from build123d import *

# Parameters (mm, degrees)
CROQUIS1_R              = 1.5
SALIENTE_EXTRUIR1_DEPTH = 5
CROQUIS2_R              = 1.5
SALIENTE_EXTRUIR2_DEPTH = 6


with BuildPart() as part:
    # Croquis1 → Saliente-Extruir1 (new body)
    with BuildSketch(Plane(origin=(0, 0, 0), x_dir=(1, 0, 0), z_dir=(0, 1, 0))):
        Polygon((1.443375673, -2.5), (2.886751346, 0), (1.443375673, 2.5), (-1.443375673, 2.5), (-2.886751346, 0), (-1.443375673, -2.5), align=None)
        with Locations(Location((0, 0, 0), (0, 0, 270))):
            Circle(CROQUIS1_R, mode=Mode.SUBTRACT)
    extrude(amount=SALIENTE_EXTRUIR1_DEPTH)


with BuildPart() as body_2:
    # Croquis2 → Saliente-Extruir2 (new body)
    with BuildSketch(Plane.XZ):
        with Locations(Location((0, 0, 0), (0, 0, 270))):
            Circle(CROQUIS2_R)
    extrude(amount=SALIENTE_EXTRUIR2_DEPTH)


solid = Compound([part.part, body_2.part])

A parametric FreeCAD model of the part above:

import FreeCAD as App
import Part
import Sketcher

V = App.Vector
Q = App.Units.Quantity

doc = App.newDocument("Part")
body = doc.addObject("PartDesign::Body", "Body")

# Sketch on XZ plane
sketch1 = body.newObject("Sketcher::SketchObject", "Sketch")
sketch1.AttachmentSupport = (doc.getObject("XZ_Plane"), [""])
sketch1.MapMode = "FlatFace"
sketch1.addGeometry([
    Part.LineSegment(V(1.4, 2.5, 0), V(2.9, 0, 0)),  # 0
    Part.LineSegment(V(2.9, 0, 0), V(1.4, -2.5, 0)),  # 1
    Part.LineSegment(V(1.4, -2.5, 0), V(-1.4, -2.5, 0)),  # 2
    Part.LineSegment(V(-1.4, -2.5, 0), V(-2.9, 0, 0)),  # 3
    Part.LineSegment(V(-2.9, 0, 0), V(-1.4, 2.5, 0)),  # 4
    Part.LineSegment(V(-1.4, 2.5, 0), V(1.4, 2.5, 0)),  # 5
    Part.Circle(V(0, 0, 0), V(0, 0, 1), 1.5),  # 6
], False)
sketch1.addConstraint([
    Sketcher.Constraint("Coincident", 0, 2, 1, 1),
    Sketcher.Constraint("Coincident", 1, 2, 2, 1),
    Sketcher.Constraint("Coincident", 2, 2, 3, 1),
    Sketcher.Constraint("Coincident", 3, 2, 4, 1),
    Sketcher.Constraint("Coincident", 4, 2, 5, 1),
    Sketcher.Constraint("Coincident", 5, 2, 0, 1),
    Sketcher.Constraint("Horizontal", 2),
    Sketcher.Constraint("Horizontal", 5),
    Sketcher.Constraint("Coincident", 6, 3, -1, 1),
    Sketcher.Constraint("Symmetric", 0, 2, 3, 2, -1, 1),
    Sketcher.Constraint("Symmetric", 1, 2, 4, 2, -1, 1),
    Sketcher.Constraint("PointOnObject", 0, 2, -1),
    Sketcher.Constraint("Parallel", 0, 3),
    Sketcher.Constraint("Vertical", 2, 2, 4, 2),
    Sketcher.Constraint("Diameter", 6, 3.0),
    Sketcher.Constraint("Angle", 0, Q("-60 deg")),
    Sketcher.Constraint("DistanceY", 2, 2, 4, 2, 5.0),
    Sketcher.Constraint("DistanceX", 2, 2, 2, 1, 2.886751),
])
pad1 = body.newObject("PartDesign::Pad", "Pad")
pad1.Profile = sketch1
pad1.Length = 5
pad1.Reversed = True
body2 = doc.addObject("PartDesign::Body", "Body001")

# Sketch on XZ plane
sketch2 = body2.newObject("Sketcher::SketchObject", "Sketch001")
sketch2.AttachmentSupport = (doc.getObject("XZ_Plane001"), [""])
sketch2.MapMode = "FlatFace"
sketch2.addGeometry(Part.Circle(V(0, 0, 0), V(0, 0, 1), 1.5), False)
sketch2.addConstraint([
    Sketcher.Constraint("Coincident", 0, 3, -1, 1),
    Sketcher.Constraint("Diameter", 0, 3.0),
])
pad2 = body2.newObject("PartDesign::Pad", "Pad001")
pad2.Profile = sketch2
pad2.Length = 6

doc.recompute()
